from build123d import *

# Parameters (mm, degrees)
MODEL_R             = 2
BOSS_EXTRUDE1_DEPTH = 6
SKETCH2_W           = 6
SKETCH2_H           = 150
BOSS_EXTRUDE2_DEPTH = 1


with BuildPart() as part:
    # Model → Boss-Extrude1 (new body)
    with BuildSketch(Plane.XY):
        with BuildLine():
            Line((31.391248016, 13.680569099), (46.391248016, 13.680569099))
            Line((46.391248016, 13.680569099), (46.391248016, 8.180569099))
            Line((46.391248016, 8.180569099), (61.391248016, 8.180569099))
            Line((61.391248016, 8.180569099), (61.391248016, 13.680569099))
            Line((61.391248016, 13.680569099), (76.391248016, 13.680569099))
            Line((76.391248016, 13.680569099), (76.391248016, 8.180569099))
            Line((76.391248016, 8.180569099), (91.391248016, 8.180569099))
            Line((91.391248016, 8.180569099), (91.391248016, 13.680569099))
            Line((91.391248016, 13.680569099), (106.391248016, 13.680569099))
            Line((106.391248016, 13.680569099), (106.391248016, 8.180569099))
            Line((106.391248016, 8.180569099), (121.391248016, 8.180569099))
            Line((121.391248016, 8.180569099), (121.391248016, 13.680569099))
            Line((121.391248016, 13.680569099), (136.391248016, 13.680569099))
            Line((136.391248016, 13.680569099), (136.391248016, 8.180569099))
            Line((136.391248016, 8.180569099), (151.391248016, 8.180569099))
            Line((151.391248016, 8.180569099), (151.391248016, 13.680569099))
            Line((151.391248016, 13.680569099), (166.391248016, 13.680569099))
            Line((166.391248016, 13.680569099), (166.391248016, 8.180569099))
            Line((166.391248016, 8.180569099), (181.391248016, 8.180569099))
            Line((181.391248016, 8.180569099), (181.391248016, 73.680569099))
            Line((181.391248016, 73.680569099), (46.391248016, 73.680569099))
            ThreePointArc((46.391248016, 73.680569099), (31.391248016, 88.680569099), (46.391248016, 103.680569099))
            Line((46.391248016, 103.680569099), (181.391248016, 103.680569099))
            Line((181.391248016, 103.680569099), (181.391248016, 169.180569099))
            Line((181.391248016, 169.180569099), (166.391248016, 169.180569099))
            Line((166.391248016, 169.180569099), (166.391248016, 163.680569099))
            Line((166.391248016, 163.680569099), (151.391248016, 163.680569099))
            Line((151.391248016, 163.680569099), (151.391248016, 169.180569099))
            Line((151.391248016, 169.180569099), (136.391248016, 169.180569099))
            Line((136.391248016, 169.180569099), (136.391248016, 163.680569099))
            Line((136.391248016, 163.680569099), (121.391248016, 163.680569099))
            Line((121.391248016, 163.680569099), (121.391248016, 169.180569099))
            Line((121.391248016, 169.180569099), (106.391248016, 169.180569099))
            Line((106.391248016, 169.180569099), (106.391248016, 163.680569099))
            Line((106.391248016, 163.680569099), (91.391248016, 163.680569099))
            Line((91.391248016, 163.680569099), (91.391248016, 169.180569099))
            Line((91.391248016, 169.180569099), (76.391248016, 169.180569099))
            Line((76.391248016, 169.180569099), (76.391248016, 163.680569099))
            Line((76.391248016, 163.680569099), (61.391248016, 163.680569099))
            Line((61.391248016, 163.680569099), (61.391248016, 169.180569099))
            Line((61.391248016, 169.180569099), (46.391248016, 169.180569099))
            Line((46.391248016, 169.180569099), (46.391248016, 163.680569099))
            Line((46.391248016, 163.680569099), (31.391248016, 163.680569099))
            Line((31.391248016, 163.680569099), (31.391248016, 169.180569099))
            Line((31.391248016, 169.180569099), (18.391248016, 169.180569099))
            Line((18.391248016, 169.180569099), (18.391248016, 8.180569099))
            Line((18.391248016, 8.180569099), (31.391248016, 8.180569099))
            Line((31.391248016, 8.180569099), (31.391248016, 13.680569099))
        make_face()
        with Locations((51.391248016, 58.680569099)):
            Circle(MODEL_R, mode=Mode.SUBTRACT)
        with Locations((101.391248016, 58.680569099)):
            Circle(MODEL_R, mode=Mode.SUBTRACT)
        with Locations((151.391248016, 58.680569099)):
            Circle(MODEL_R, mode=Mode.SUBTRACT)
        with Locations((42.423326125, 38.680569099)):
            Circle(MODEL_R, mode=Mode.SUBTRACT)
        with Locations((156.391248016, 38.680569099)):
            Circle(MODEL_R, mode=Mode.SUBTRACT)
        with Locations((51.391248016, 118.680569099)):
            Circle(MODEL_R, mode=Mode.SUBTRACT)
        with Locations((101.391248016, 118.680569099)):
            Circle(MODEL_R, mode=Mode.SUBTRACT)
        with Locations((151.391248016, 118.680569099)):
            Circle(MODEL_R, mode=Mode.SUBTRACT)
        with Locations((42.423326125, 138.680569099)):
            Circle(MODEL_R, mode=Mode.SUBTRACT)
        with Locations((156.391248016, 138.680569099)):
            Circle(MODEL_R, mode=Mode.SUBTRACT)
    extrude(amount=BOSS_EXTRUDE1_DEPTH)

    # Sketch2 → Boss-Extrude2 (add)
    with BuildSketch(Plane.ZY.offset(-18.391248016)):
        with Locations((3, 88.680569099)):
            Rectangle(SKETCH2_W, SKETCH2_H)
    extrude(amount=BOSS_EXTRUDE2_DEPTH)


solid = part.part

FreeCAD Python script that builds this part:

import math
import FreeCAD as App
import Part
import Sketcher
from FreeCAD import Vector
Q = App.Units.Quantity


def add_polygon(sketch, points):
    """Adds a closed chain of lines whose ends are joined by coincident constraints."""
    first, n = sketch.GeometryCount, len(points)
    for a, b in zip(points, points[1:] + points[:1]):
        sketch.addGeometry(Part.LineSegment(App.Vector(*a, 0), App.Vector(*b, 0)), False)
    for i in range(n):
        sketch.addConstraint(Sketcher.Constraint("Coincident", first + i, 2, first + (i + 1) % n, 1))

doc = App.newDocument("Part")
body = doc.addObject("PartDesign::Body", "Body")

# Sketch on XY plane
sketch1 = body.newObject("Sketcher::SketchObject", "Sketch")
sketch1.AttachmentSupport = (doc.getObject("XY_Plane"), [""])
sketch1.MapMode = "FlatFace"
sketch1.addGeometry([
    Part.LineSegment(Vector(31.4, 13.7, 0), Vector(46.4, 13.7, 0)),  # 0
    Part.LineSegment(Vector(46.4, 13.7, 0), Vector(46.4, 8.2, 0)),  # 1
    Part.LineSegment(Vector(46.4, 8.2, 0), Vector(61.4, 8.2, 0)),  # 2
    Part.LineSegment(Vector(61.4, 8.2, 0), Vector(61.4, 13.7, 0)),  # 3
    Part.LineSegment(Vector(61.4, 13.7, 0), Vector(76.4, 13.7, 0)),  # 4
    Part.LineSegment(Vector(76.4, 13.7, 0), Vector(76.4, 8.2, 0)),  # 5
    Part.LineSegment(Vector(76.4, 8.2, 0), Vector(91.4, 8.2, 0)),  # 6
    Part.LineSegment(Vector(91.4, 8.2, 0), Vector(91.4, 13.7, 0)),  # 7
    Part.LineSegment(Vector(91.4, 13.7, 0), Vector(106.4, 13.7, 0)),  # 8
    Part.LineSegment(Vector(106.4, 13.7, 0), Vector(106.4, 8.2, 0)),  # 9
    Part.LineSegment(Vector(106.4, 8.2, 0), Vector(121.4, 8.2, 0)),  # 10
    Part.LineSegment(Vector(121.4, 8.2, 0), Vector(121.4, 13.7, 0)),  # 11
    Part.LineSegment(Vector(121.4, 13.7, 0), Vector(136.4, 13.7, 0)),  # 12
    Part.LineSegment(Vector(136.4, 13.7, 0), Vector(136.4, 8.2, 0)),  # 13
    Part.LineSegment(Vector(136.4, 8.2, 0), Vector(151.4, 8.2, 0)),  # 14
    Part.LineSegment(Vector(151.4, 8.2, 0), Vector(151.4, 13.7, 0)),  # 15
    Part.LineSegment(Vector(151.4, 13.7, 0), Vector(166.4, 13.7, 0)),  # 16
    Part.LineSegment(Vector(166.4, 13.7, 0), Vector(166.4, 8.2, 0)),  # 17
    Part.LineSegment(Vector(166.4, 8.2, 0), Vector(181.4, 8.2, 0)),  # 18
    Part.LineSegment(Vector(181.4, 8.2, 0), Vector(181.4, 73.7, 0)),  # 19
    Part.LineSegment(Vector(181.4, 73.7, 0), Vector(46.4, 73.7, 0)),  # 20
    Part.ArcOfCircle(Part.Circle(Vector(46.4, 88.7, 0), Vector(0, 0, 1), 15), math.radians(90), math.radians(270)),  # 21
    Part.LineSegment(Vector(46.4, 103.7, 0), Vector(181.4, 103.7, 0)),  # 22
    Part.LineSegment(Vector(181.4, 103.7, 0), Vector(181.4, 169.2, 0)),  # 23
    Part.LineSegment(Vector(181.4, 169.2, 0), Vector(166.4, 169.2, 0)),  # 24
    Part.LineSegment(Vector(166.4, 169.2, 0), Vector(166.4, 163.7, 0)),  # 25
    Part.LineSegment(Vector(166.4, 163.7, 0), Vector(151.4, 163.7, 0)),  # 26
    Part.LineSegment(Vector(151.4, 163.7, 0), Vector(151.4, 169.2, 0)),  # 27
    Part.LineSegment(Vector(151.4, 169.2, 0), Vector(136.4, 169.2, 0)),  # 28
    Part.LineSegment(Vector(136.4, 169.2, 0), Vector(136.4, 163.7, 0)),  # 29
    Part.LineSegment(Vector(136.4, 163.7, 0), Vector(121.4, 163.7, 0)),  # 30
    Part.LineSegment(Vector(121.4, 163.7, 0), Vector(121.4, 169.2, 0)),  # 31
    Part.LineSegment(Vector(121.4, 169.2, 0), Vector(106.4, 169.2, 0)),  # 32
    Part.LineSegment(Vector(106.4, 169.2, 0), Vector(106.4, 163.7, 0)),  # 33
    Part.LineSegment(Vector(106.4, 163.7, 0), Vector(91.4, 163.7, 0)),  # 34
    Part.LineSegment(Vector(91.4, 163.7, 0), Vector(91.4, 169.2, 0)),  # 35
    Part.LineSegment(Vector(91.4, 169.2, 0), Vector(76.4, 169.2, 0)),  # 36
    Part.LineSegment(Vector(76.4, 169.2, 0), Vector(76.4, 163.7, 0)),  # 37
    Part.LineSegment(Vector(76.4, 163.7, 0), Vector(61.4, 163.7, 0)),  # 38
    Part.LineSegment(Vector(61.4, 163.7, 0), Vector(61.4, 169.2, 0)),  # 39
    Part.LineSegment(Vector(61.4, 169.2, 0), Vector(46.4, 169.2, 0)),  # 40
    Part.LineSegment(Vector(46.4, 169.2, 0), Vector(46.4, 163.7, 0)),  # 41
    Part.LineSegment(Vector(46.4, 163.7, 0), Vector(31.4, 163.7, 0)),  # 42
    Part.LineSegment(Vector(31.4, 163.7, 0), Vector(31.4, 169.2, 0)),  # 43
    Part.LineSegment(Vector(31.4, 169.2, 0), Vector(18.4, 169.2, 0)),  # 44
    Part.LineSegment(Vector(18.4, 169.2, 0), Vector(18.4, 8.2, 0)),  # 45
    Part.LineSegment(Vector(18.4, 8.2, 0), Vector(31.4, 8.2, 0)),  # 46
    Part.LineSegment(Vector(31.4, 8.2, 0), Vector(31.4, 13.7, 0)),  # 47
    Part.Circle(Vector(42.4, 38.7, 0), Vector(0, 0, 1), 2),  # 48
    Part.Circle(Vector(51.4, 58.7, 0), Vector(0, 0, 1), 2),  # 49
    Part.Circle(Vector(101.4, 58.7, 0), Vector(0, 0, 1), 2),  # 50
    Part.Circle(Vector(156.4, 38.7, 0), Vector(0, 0, 1), 2),  # 51
    Part.Circle(Vector(151.4, 58.7, 0), Vector(0, 0, 1), 2),  # 52
    Part.Circle(Vector(51.4, 118.7, 0), Vector(0, 0, 1), 2),  # 53
    Part.Circle(Vector(42.4, 138.7, 0), Vector(0, 0, 1), 2),  # 54
    Part.Circle(Vector(101.4, 118.7, 0), Vector(0, 0, 1), 2),  # 55
    Part.Circle(Vector(151.4, 118.7, 0), Vector(0, 0, 1), 2),  # 56
    Part.Circle(Vector(156.4, 138.7, 0), Vector(0, 0, 1), 2),  # 57
], False)
sketch1.addConstraint([
    Sketcher.Constraint("Coincident", 0, 2, 1, 1),
    Sketcher.Constraint("Coincident", 1, 2, 2, 1),
    Sketcher.Constraint("Coincident", 2, 2, 3, 1),
    Sketcher.Constraint("Coincident", 3, 2, 4, 1),
    Sketcher.Constraint("Coincident", 4, 2, 5, 1),
    Sketcher.Constraint("Coincident", 5, 2, 6, 1),
    Sketcher.Constraint("Coincident", 6, 2, 7, 1),
    Sketcher.Constraint("Coincident", 7, 2, 8, 1),
    Sketcher.Constraint("Coincident", 8, 2, 9, 1),
    Sketcher.Constraint("Coincident", 9, 2, 10, 1),
    Sketcher.Constraint("Coincident", 10, 2, 11, 1),
    Sketcher.Constraint("Coincident", 11, 2, 12, 1),
    Sketcher.Constraint("Coincident", 12, 2, 13, 1),
    Sketcher.Constraint("Coincident", 13, 2, 14, 1),
    Sketcher.Constraint("Coincident", 14, 2, 15, 1),
    Sketcher.Constraint("Coincident", 15, 2, 16, 1),
    Sketcher.Constraint("Coincident", 16, 2, 17, 1),
    Sketcher.Constraint("Coincident", 17, 2, 18, 1),
    Sketcher.Constraint("Coincident", 18, 2, 19, 1),
    Sketcher.Constraint("Coincident", 19, 2, 20, 1),
    Sketcher.Constraint("Tangent", 20, 2, 21, 2),
    Sketcher.Constraint("Tangent", 21, 1, 22, 1),
    Sketcher.Constraint("Coincident", 22, 2, 23, 1),
    Sketcher.Constraint("Coincident", 23, 2, 24, 1),
    Sketcher.Constraint("Coincident", 24, 2, 25, 1),
    Sketcher.Constraint("Coincident", 25, 2, 26, 1),
    Sketcher.Constraint("Coincident", 26, 2, 27, 1),
    Sketcher.Constraint("Coincident", 27, 2, 28, 1),
    Sketcher.Constraint("Coincident", 28, 2, 29, 1),
    Sketcher.Constraint("Coincident", 29, 2, 30, 1),
    Sketcher.Constraint("Coincident", 30, 2, 31, 1),
    Sketcher.Constraint("Coincident", 31, 2, 32, 1),
    Sketcher.Constraint("Coincident", 32, 2, 33, 1),
    Sketcher.Constraint("Coincident", 33, 2, 34, 1),
    Sketcher.Constraint("Coincident", 34, 2, 35, 1),
    Sketcher.Constraint("Coincident", 35, 2, 36, 1),
    Sketcher.Constraint("Coincident", 36, 2, 37, 1),
    Sketcher.Constraint("Coincident", 37, 2, 38, 1),
    Sketcher.Constraint("Coincident", 38, 2, 39, 1),
    Sketcher.Constraint("Coincident", 39, 2, 40, 1),
    Sketcher.Constraint("Coincident", 40, 2, 41, 1),
    Sketcher.Constraint("Coincident", 41, 2, 42, 1),
    Sketcher.Constraint("Coincident", 42, 2, 43, 1),
    Sketcher.Constraint("Coincident", 43, 2, 44, 1),
    Sketcher.Constraint("Coincident", 44, 2, 45, 1),
    Sketcher.Constraint("Coincident", 45, 2, 46, 1),
    Sketcher.Constraint("Coincident", 46, 2, 47, 1),
    Sketcher.Constraint("Coincident", 47, 2, 0, 1),
    Sketcher.Constraint("Horizontal", 0),
    Sketcher.Constraint("Vertical", 1),
    Sketcher.Constraint("Horizontal", 2),
    Sketcher.Constraint("Vertical", 3),
    Sketcher.Constraint("Horizontal", 4),
    Sketcher.Constraint("Vertical", 5),
    Sketcher.Constraint("Horizontal", 6),
    Sketcher.Constraint("Vertical", 7),
    Sketcher.Constraint("Horizontal", 8),
    Sketcher.Constraint("Vertical", 9),
    Sketcher.Constraint("Horizontal", 10),
    Sketcher.Constraint("Vertical", 11),
    Sketcher.Constraint("Horizontal", 12),
    Sketcher.Constraint("Vertical", 13),
    Sketcher.Constraint("Horizontal", 14),
    Sketcher.Constraint("Vertical", 15),
    Sketcher.Constraint("Horizontal", 16),
    Sketcher.Constraint("Vertical", 17),
    Sketcher.Constraint("Horizontal", 18),
    Sketcher.Constraint("Vertical", 19),
    Sketcher.Constraint("Horizontal", 20),
    Sketcher.Constraint("Horizontal", 22),
    Sketcher.Constraint("Vertical", 23),
    Sketcher.Constraint("Horizontal", 24),
    Sketcher.Constraint("Vertical", 25),
    Sketcher.Constraint("Horizontal", 26),
    Sketcher.Constraint("Vertical", 27),
    Sketcher.Constraint("Horizontal", 28),
    Sketcher.Constraint("Vertical", 29),
    Sketcher.Constraint("Horizontal", 30),
    Sketcher.Constraint("Vertical", 31),
    Sketcher.Constraint("Horizontal", 32),
    Sketcher.Constraint("Vertical", 33),
    Sketcher.Constraint("Horizontal", 34),
    Sketcher.Constraint("Vertical", 35),
    Sketcher.Constraint("Horizontal", 36),
    Sketcher.Constraint("Vertical", 37),
    Sketcher.Constraint("Horizontal", 38),
    Sketcher.Constraint("Vertical", 39),
    Sketcher.Constraint("Horizontal", 40),
    Sketcher.Constraint("Vertical", 41),
    Sketcher.Constraint("Horizontal", 42),
    Sketcher.Constraint("Vertical", 43),
    Sketcher.Constraint("Horizontal", 44),
    Sketcher.Constraint("Vertical", 45),
    Sketcher.Constraint("Horizontal", 46),
    Sketcher.Constraint("Vertical", 47),
    Sketcher.Constraint("Equal", 48, 49),
    Sketcher.Constraint("Equal", 49, 50),
    Sketcher.Constraint("Equal", 50, 51),
    Sketcher.Constraint("Equal", 51, 52),
    Sketcher.Constraint("Equal", 52, 53),
    Sketcher.Constraint("Equal", 53, 54),
    Sketcher.Constraint("Equal", 54, 55),
    Sketcher.Constraint("Equal", 55, 56),
    Sketcher.Constraint("Equal", 56, 57),
    Sketcher.Constraint("Horizontal", 49, 3, 50, 3),
    Sketcher.Constraint("Horizontal", 48, 3, 51, 3),
    Sketcher.Constraint("Horizontal", 50, 3, 52, 3),
    Sketcher.Constraint("Horizontal", 53, 3, 55, 3),
    Sketcher.Constraint("Horizontal", 55, 3, 56, 3),
    Sketcher.Constraint("Horizontal", 54, 3, 57, 3),
    Sketcher.Constraint("Horizontal", 0, 2, 3, 2),
    Sketcher.Constraint("Horizontal", 2, 2, 5, 2),
    Sketcher.Constraint("Horizontal", 4, 2, 7, 2),
    Sketcher.Constraint("Horizontal", 6, 2, 9, 2),
    Sketcher.Constraint("Horizontal", 8, 2, 11, 2),
    Sketcher.Constraint("Horizontal", 10, 2, 13, 2),
    Sketcher.Constraint("Horizontal", 12, 2, 15, 2),
    Sketcher.Constraint("Horizontal", 14, 2, 17, 2),
    Sketcher.Constraint("Horizontal", 24, 2, 27, 2),
    Sketcher.Constraint("Horizontal", 26, 2, 29, 2),
    Sketcher.Constraint("Horizontal", 28, 2, 31, 2),
    Sketcher.Constraint("Horizontal", 30, 2, 33, 2),
    Sketcher.Constraint("Horizontal", 32, 2, 35, 2),
    Sketcher.Constraint("Horizontal", 34, 2, 37, 2),
    Sketcher.Constraint("Horizontal", 36, 2, 39, 2),
    Sketcher.Constraint("Horizontal", 38, 2, 41, 2),
    Sketcher.Constraint("Horizontal", 40, 2, 43, 2),
    Sketcher.Constraint("Horizontal", 18, 2, 45, 2),
    Sketcher.Constraint("Vertical", 49, 3, 53, 3),
    Sketcher.Constraint("Vertical", 48, 3, 54, 3),
    Sketcher.Constraint("Vertical", 50, 3, 55, 3),
    Sketcher.Constraint("Vertical", 52, 3, 56, 3),
    Sketcher.Constraint("Vertical", 51, 3, 57, 3),
    Sketcher.Constraint("Vertical", 21, 3, 0, 2),
    Sketcher.Constraint("Vertical", 56, 3, 14, 2),
    Sketcher.Constraint("Vertical", 19, 2, 22, 2),
    Sketcher.Constraint("Vertical", 17, 2, 24, 2),
    Sketcher.Constraint("Vertical", 15, 2, 26, 2),
    Sketcher.Constraint("Vertical", 13, 2, 28, 2),
    Sketcher.Constraint("Vertical", 11, 2, 30, 2),
    Sketcher.Constraint("Vertical", 9, 2, 32, 2),
    Sketcher.Constraint("Vertical", 7, 2, 34, 2),
    Sketcher.Constraint("Vertical", 5, 2, 36, 2),
    Sketcher.Constraint("Vertical", 3, 2, 38, 2),
    Sketcher.Constraint("Vertical", 21, 1, 40, 2),
    Sketcher.Constraint("Vertical", 43, 2, 46, 2),
    Sketcher.Constraint("Equal", 0, 2),
    Sketcher.Constraint("Equal", 2, 4),
    Sketcher.Constraint("Equal", 4, 6),
    Sketcher.Constraint("Equal", 6, 8),
    Sketcher.Constraint("Equal", 8, 10),
    Sketcher.Constraint("Equal", 10, 12),
    Sketcher.Constraint("Equal", 12, 14),
    Sketcher.Constraint("Equal", 14, 16),
    Sketcher.Constraint("Equal", 16, 18),
    Sketcher.Constraint("Equal", 19, 23),
    Sketcher.Constraint("Equal", 17, 25),
    Sketcher.Constraint("Diameter", 48, Q("4 mm")),
    Sketcher.Constraint("Radius", 21, Q("15 mm")),
    Sketcher.Constraint("DistanceX", 0, 1, 0, 2, Q("15 mm")),
    Sketcher.Constraint("DistanceX", 44, 2, 44, 1, Q("13 mm")),
    Sketcher.Constraint("DistanceY", 45, 2, 45, 1, Q("161 mm")),
    Sketcher.Constraint("DistanceY", 1, 2, 1, 1, Q("5.5 mm")),
    Sketcher.Constraint("DistanceY", 48, 3, 21, 3, Q("50 mm")),
    Sketcher.Constraint("DistanceY", 48, 3, 49, 3, Q("20 mm")),
    Sketcher.Constraint("DistanceX", 21, 3, 49, 3, Q("5 mm")),
    Sketcher.Constraint("DistanceX", 49, 3, 50, 3, Q("50 mm")),
    Sketcher.Constraint("DistanceX", 50, 3, 51, 3, Q("55 mm")),
    Sketcher.Constraint("DistanceY", 21, 3, 53, 3, Q("30 mm")),
    Sketcher.Constraint("DistanceY", 53, 3, 54, 3, Q("20 mm")),
    Sketcher.Constraint("DistanceX", -1, 1, 21, 3, Q("46.391248 mm")),
    Sketcher.Constraint("DistanceY", -1, 1, 21, 3, Q("88.680569 mm")),
    Sketcher.Constraint("DistanceX", 48, 3, 21, 3, Q("3.967922 mm")),
])
pad1 = body.newObject("PartDesign::Pad", "Pad")
pad1.Profile = sketch1
pad1.Length = 6

# Sketch on YZ plane
sketch2 = body.newObject("Sketcher::SketchObject", "Sketch001")
sketch2.AttachmentSupport = (doc.getObject("YZ_Plane"), [""])
sketch2.MapMode = "FlatFace"
sketch2.AttachmentOffset = App.Placement(Vector(0, 0, 18.391248), App.Rotation())
add_polygon(sketch2, [(164, 0), (14, 0), (14, 6), (164, 6)])  # lines 0-3
sketch2.addConstraint([
    Sketcher.Constraint("Horizontal", 0),
    Sketcher.Constraint("Vertical", 1),
    Sketcher.Constraint("Horizontal", 2),
    Sketcher.Constraint("Vertical", 3),
    Sketcher.Constraint("PointOnObject", 0, 2, -1),
    Sketcher.Constraint("DistanceX", 0, 2, 0, 1, Q("150 mm")),
    Sketcher.Constraint("DistanceY", 1, 1, 1, 2, Q("6 mm")),
    Sketcher.Constraint("DistanceX", -1, 1, 0, 2, Q("13.680569 mm")),
])
pad2 = body.newObject("PartDesign::Pad", "Pad001")
pad2.Profile = sketch2
pad2.Length = 1
pad2.Reversed = True

doc.recompute()
